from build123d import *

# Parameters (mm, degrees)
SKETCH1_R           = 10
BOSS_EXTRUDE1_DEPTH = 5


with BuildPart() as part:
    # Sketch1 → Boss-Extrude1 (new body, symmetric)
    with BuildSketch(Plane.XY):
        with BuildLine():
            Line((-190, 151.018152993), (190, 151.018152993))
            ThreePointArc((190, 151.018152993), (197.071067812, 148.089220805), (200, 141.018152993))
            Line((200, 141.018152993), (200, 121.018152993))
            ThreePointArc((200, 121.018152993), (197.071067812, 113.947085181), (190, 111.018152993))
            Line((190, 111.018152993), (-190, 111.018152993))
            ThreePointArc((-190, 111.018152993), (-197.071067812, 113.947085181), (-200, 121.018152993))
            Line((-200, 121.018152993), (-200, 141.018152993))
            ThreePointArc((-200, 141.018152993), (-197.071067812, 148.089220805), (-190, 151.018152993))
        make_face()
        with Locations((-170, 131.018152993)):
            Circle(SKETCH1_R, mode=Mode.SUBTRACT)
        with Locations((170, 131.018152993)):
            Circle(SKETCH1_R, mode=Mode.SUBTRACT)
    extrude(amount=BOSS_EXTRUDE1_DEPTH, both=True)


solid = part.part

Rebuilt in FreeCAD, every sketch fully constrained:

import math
import FreeCAD as App
import Part
import Sketcher
from FreeCAD import Vector

doc = App.newDocument("Part")
params = doc.addObject("Spreadsheet::Sheet", "Params")
for row, (alias, value) in enumerate([
    ("sketch1_diameter", "20 mm"),
    ("sketch1_width", "380 mm"),
    ("sketch1_height", "20 mm"),
    ("pad1_length", "10 mm"),
], start=1):
    params.set(f"A{row}", alias)
    params.set(f"B{row}", "=" + value)
    params.setAlias(f"B{row}", alias)

body = doc.addObject("PartDesign::Body", "Body")

sketch1 = body.newObject("Sketcher::SketchObject", "Sketch")
sketch1.AttachmentSupport = (doc.getObject("XY_Plane"), [""])
sketch1.MapMode = "FlatFace"
sketch1.addGeometry([
    Part.LineSegment(Vector(190, 151, 0), Vector(-190, 151, 0)),
    Part.ArcOfCircle(Part.Circle(Vector(-190, 141, 0), Vector(0, 0, 1), 10), math.radians(90), math.radians(180)),
    Part.LineSegment(Vector(-200, 141, 0), Vector(-200, 121, 0)),
    Part.ArcOfCircle(Part.Circle(Vector(-190, 121, 0), Vector(0, 0, 1), 10), math.radians(180), math.radians(270)),
    Part.LineSegment(Vector(-190, 111, 0), Vector(190, 111, 0)),
    Part.ArcOfCircle(Part.Circle(Vector(190, 121, 0), Vector(0, 0, 1), 10), math.radians(-90), math.radians(0)),
    Part.LineSegment(Vector(200, 121, 0), Vector(200, 141, 0)),
    Part.ArcOfCircle(Part.Circle(Vector(190, 141, 0), Vector(0, 0, 1), 10), math.radians(0), math.radians(90)),
    Part.Circle(Vector(170, 131, 0), Vector(0, 0, 1), 10),
    Part.Circle(Vector(-170, 131, 0), Vector(0, 0, 1), 10),
], False)
sketch1.addConstraint([
    Sketcher.Constraint("Tangent", 0, 2, 1, 1),
    Sketcher.Constraint("Tangent", 1, 2, 2, 1),
    Sketcher.Constraint("Tangent", 2, 2, 3, 1),
    Sketcher.Constraint("Tangent", 3, 2, 4, 1),
    Sketcher.Constraint("Tangent", 4, 2, 5, 1),
    Sketcher.Constraint("Tangent", 5, 2, 6, 1),
    Sketcher.Constraint("Tangent", 6, 2, 7, 1),
    Sketcher.Constraint("Tangent", 7, 2, 0, 1),
    Sketcher.Constraint("Horizontal", 0),
    Sketcher.Constraint("Vertical", 2),
    Sketcher.Constraint("Horizontal", 4),
    Sketcher.Constraint("Vertical", 6),
    Sketcher.Constraint("Equal", 1, 3),
    Sketcher.Constraint("Equal", 3, 5),
    Sketcher.Constraint("Equal", 5, 7),
    Sketcher.Constraint("Equal", 7, 8),
    Sketcher.Constraint("Equal", 8, 9),
    Sketcher.Constraint("Symmetric", 8, 3, 9, 3, -2),
    Sketcher.Constraint("Diameter", 8, 20.0),
    Sketcher.Constraint("DistanceX", 0, 2, 0, 1, 380.0),
    Sketcher.Constraint("DistanceY", 2, 2, 2, 1, 20.0),
    Sketcher.Constraint("DistanceX", 1, 3, -1, 1, 190.0),
    Sketcher.Constraint("DistanceX", -1, 1, 8, 3, 170.0),
    Sketcher.Constraint("DistanceY", 5, 3, 8, 3, 10.0),
    Sketcher.Constraint("DistanceY", -1, 1, 1, 3, 141.018153),
])
sketch1.setExpression("Constraints[18]", "Params.sketch1_diameter")
sketch1.setExpression("Constraints[19]", "Params.sketch1_width")
sketch1.setExpression("Constraints[20]", "Params.sketch1_height")
pad1 = body.newObject("PartDesign::Pad", "Pad")
pad1.Profile = sketch1
pad1.setExpression("Length", "Params.pad1_length")
pad1.Midplane = True

doc.recompute()
